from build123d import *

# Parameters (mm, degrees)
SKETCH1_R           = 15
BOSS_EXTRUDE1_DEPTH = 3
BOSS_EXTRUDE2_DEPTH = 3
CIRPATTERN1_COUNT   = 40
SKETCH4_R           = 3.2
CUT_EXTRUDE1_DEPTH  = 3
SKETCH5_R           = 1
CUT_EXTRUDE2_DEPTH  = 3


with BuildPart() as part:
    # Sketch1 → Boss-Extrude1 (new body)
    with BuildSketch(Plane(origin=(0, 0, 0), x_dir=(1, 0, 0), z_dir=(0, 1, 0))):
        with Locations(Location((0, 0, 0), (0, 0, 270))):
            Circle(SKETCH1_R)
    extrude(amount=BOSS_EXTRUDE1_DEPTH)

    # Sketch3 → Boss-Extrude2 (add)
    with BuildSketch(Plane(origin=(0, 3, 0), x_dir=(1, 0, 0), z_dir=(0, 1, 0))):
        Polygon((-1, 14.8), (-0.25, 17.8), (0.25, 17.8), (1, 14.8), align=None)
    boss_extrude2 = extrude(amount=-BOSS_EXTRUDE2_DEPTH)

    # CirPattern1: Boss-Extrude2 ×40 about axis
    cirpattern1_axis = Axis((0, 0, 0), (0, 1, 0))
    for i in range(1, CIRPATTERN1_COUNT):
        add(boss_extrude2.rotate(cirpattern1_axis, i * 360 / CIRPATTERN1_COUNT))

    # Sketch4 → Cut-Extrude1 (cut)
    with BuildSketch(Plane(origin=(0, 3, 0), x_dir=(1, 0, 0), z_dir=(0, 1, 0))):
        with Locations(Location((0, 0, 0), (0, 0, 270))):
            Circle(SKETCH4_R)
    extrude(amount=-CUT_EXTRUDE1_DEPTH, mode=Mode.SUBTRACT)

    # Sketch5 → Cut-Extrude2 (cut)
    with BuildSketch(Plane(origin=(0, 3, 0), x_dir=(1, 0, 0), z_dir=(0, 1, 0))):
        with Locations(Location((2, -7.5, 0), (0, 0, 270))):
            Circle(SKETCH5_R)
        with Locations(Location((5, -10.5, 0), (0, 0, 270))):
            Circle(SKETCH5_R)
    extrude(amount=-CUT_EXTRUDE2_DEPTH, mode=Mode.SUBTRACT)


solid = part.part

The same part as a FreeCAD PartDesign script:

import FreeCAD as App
import Part
import Sketcher

V = App.Vector


def add_polygon(sketch, points):
    """Adds a closed chain of lines whose ends are joined by coincident constraints."""
    first, n = sketch.GeometryCount, len(points)
    for a, b in zip(points, points[1:] + points[:1]):
        sketch.addGeometry(Part.LineSegment(App.Vector(*a, 0), App.Vector(*b, 0)), False)
    for i in range(n):
        sketch.addConstraint(Sketcher.Constraint("Coincident", first + i, 2, first + (i + 1) % n, 1))

doc = App.newDocument("Part")
body = doc.addObject("PartDesign::Body", "Body")

sketch1 = body.newObject("Sketcher::SketchObject", "Sketch")
sketch1.AttachmentSupport = (doc.getObject("XZ_Plane"), [""])
sketch1.MapMode = "FlatFace"
sketch1.addGeometry(Part.Circle(V(0, 0, 0), V(0, 0, 1), 15), False)
sketch1.addConstraint(Sketcher.Constraint("Coincident", 0, 3, -1, 1))
sketch1.addConstraint(Sketcher.Constraint("Diameter", 0, 30.0))
pad1 = body.newObject("PartDesign::Pad", "Pad")
pad1.Profile = sketch1
pad1.Length = 3
pad1.Reversed = True

sketch2 = body.newObject("Sketcher::SketchObject", "Sketch001")
sketch2.AttachmentSupport = (doc.getObject("XZ_Plane"), [""])
sketch2.MapMode = "FlatFace"
sketch2.AttachmentOffset = App.Placement(V(0, 0, -3), App.Rotation())
add_polygon(sketch2, [(-0.2, -17.8), (-1, -14.8), (1, -14.8), (0.2, -17.8)])
sketch2.addConstraint(Sketcher.Constraint("Horizontal", 1))
sketch2.addConstraint(Sketcher.Constraint("Horizontal", 3))
sketch2.addConstraint(Sketcher.Constraint("Equal", 0, 2))
sketch2.addConstraint(Sketcher.Constraint("DistanceX", 1, 1, 1, 2, 2.0))
sketch2.addConstraint(Sketcher.Constraint("DistanceX", 3, 2, 3, 1, 0.5))
sketch2.addConstraint(Sketcher.Constraint("DistanceX", 0, 2, -1, 1, 1.0))
sketch2.addConstraint(Sketcher.Constraint("DistanceY", 2, 2, 1, 2, 3.0))
sketch2.addConstraint(Sketcher.Constraint("DistanceY", 0, 2, -1, 1, 14.8))
pad2 = body.newObject("PartDesign::Pad", "Pad001")
pad2.Profile = sketch2
pad2.Length = 3
doc.recompute()

polarpattern = body.newObject("PartDesign::PolarPattern", "PolarPattern")
polarpattern.Originals = [pad2]
polarpattern.Axis = (doc.getObject("Y_Axis"), [""])
polarpattern.Angle = 360
polarpattern.Occurrences = 40
body.Tip = polarpattern

sketch3 = body.newObject("Sketcher::SketchObject", "Sketch002")
sketch3.AttachmentSupport = (doc.getObject("XZ_Plane"), [""])
sketch3.MapMode = "FlatFace"
sketch3.AttachmentOffset = App.Placement(V(0, 0, -3), App.Rotation())
sketch3.addGeometry(Part.Circle(V(0, 0, 0), V(0, 0, 1), 3.2), False)
sketch3.addConstraint(Sketcher.Constraint("Coincident", 0, 3, -1, 1))
sketch3.addConstraint(Sketcher.Constraint("Diameter", 0, 6.4))
pocket1 = body.newObject("PartDesign::Pocket", "Pocket")
pocket1.Profile = sketch3
pocket1.Length = 3
pocket1.Reversed = True

sketch4 = body.newObject("Sketcher::SketchObject", "Sketch003")
sketch4.AttachmentSupport = (doc.getObject("XZ_Plane"), [""])
sketch4.MapMode = "FlatFace"
sketch4.AttachmentOffset = App.Placement(V(0, 0, -3), App.Rotation())
sketch4.addGeometry(Part.Circle(V(2, 7.5, 0), V(0, 0, 1), 1), False)
sketch4.addGeometry(Part.Circle(V(5, 10.5, 0), V(0, 0, 1), 1), False)
sketch4.addConstraint(Sketcher.Constraint("Equal", 0, 1))
sketch4.addConstraint(Sketcher.Constraint("Diameter", 0, 2.0))
sketch4.addConstraint(Sketcher.Constraint("DistanceX", -1, 1, 0, 3, 2.0))
sketch4.addConstraint(Sketcher.Constraint("DistanceX", -1, 1, 1, 3, 5.0))
sketch4.addConstraint(Sketcher.Constraint("DistanceY", 0, 3, 1, 3, 3.0))
sketch4.addConstraint(Sketcher.Constraint("DistanceY", -1, 1, 0, 3, 7.5))
pocket2 = body.newObject("PartDesign::Pocket", "Pocket001")
pocket2.Profile = sketch4
pocket2.Length = 3
pocket2.Reversed = True

doc.recompute()
